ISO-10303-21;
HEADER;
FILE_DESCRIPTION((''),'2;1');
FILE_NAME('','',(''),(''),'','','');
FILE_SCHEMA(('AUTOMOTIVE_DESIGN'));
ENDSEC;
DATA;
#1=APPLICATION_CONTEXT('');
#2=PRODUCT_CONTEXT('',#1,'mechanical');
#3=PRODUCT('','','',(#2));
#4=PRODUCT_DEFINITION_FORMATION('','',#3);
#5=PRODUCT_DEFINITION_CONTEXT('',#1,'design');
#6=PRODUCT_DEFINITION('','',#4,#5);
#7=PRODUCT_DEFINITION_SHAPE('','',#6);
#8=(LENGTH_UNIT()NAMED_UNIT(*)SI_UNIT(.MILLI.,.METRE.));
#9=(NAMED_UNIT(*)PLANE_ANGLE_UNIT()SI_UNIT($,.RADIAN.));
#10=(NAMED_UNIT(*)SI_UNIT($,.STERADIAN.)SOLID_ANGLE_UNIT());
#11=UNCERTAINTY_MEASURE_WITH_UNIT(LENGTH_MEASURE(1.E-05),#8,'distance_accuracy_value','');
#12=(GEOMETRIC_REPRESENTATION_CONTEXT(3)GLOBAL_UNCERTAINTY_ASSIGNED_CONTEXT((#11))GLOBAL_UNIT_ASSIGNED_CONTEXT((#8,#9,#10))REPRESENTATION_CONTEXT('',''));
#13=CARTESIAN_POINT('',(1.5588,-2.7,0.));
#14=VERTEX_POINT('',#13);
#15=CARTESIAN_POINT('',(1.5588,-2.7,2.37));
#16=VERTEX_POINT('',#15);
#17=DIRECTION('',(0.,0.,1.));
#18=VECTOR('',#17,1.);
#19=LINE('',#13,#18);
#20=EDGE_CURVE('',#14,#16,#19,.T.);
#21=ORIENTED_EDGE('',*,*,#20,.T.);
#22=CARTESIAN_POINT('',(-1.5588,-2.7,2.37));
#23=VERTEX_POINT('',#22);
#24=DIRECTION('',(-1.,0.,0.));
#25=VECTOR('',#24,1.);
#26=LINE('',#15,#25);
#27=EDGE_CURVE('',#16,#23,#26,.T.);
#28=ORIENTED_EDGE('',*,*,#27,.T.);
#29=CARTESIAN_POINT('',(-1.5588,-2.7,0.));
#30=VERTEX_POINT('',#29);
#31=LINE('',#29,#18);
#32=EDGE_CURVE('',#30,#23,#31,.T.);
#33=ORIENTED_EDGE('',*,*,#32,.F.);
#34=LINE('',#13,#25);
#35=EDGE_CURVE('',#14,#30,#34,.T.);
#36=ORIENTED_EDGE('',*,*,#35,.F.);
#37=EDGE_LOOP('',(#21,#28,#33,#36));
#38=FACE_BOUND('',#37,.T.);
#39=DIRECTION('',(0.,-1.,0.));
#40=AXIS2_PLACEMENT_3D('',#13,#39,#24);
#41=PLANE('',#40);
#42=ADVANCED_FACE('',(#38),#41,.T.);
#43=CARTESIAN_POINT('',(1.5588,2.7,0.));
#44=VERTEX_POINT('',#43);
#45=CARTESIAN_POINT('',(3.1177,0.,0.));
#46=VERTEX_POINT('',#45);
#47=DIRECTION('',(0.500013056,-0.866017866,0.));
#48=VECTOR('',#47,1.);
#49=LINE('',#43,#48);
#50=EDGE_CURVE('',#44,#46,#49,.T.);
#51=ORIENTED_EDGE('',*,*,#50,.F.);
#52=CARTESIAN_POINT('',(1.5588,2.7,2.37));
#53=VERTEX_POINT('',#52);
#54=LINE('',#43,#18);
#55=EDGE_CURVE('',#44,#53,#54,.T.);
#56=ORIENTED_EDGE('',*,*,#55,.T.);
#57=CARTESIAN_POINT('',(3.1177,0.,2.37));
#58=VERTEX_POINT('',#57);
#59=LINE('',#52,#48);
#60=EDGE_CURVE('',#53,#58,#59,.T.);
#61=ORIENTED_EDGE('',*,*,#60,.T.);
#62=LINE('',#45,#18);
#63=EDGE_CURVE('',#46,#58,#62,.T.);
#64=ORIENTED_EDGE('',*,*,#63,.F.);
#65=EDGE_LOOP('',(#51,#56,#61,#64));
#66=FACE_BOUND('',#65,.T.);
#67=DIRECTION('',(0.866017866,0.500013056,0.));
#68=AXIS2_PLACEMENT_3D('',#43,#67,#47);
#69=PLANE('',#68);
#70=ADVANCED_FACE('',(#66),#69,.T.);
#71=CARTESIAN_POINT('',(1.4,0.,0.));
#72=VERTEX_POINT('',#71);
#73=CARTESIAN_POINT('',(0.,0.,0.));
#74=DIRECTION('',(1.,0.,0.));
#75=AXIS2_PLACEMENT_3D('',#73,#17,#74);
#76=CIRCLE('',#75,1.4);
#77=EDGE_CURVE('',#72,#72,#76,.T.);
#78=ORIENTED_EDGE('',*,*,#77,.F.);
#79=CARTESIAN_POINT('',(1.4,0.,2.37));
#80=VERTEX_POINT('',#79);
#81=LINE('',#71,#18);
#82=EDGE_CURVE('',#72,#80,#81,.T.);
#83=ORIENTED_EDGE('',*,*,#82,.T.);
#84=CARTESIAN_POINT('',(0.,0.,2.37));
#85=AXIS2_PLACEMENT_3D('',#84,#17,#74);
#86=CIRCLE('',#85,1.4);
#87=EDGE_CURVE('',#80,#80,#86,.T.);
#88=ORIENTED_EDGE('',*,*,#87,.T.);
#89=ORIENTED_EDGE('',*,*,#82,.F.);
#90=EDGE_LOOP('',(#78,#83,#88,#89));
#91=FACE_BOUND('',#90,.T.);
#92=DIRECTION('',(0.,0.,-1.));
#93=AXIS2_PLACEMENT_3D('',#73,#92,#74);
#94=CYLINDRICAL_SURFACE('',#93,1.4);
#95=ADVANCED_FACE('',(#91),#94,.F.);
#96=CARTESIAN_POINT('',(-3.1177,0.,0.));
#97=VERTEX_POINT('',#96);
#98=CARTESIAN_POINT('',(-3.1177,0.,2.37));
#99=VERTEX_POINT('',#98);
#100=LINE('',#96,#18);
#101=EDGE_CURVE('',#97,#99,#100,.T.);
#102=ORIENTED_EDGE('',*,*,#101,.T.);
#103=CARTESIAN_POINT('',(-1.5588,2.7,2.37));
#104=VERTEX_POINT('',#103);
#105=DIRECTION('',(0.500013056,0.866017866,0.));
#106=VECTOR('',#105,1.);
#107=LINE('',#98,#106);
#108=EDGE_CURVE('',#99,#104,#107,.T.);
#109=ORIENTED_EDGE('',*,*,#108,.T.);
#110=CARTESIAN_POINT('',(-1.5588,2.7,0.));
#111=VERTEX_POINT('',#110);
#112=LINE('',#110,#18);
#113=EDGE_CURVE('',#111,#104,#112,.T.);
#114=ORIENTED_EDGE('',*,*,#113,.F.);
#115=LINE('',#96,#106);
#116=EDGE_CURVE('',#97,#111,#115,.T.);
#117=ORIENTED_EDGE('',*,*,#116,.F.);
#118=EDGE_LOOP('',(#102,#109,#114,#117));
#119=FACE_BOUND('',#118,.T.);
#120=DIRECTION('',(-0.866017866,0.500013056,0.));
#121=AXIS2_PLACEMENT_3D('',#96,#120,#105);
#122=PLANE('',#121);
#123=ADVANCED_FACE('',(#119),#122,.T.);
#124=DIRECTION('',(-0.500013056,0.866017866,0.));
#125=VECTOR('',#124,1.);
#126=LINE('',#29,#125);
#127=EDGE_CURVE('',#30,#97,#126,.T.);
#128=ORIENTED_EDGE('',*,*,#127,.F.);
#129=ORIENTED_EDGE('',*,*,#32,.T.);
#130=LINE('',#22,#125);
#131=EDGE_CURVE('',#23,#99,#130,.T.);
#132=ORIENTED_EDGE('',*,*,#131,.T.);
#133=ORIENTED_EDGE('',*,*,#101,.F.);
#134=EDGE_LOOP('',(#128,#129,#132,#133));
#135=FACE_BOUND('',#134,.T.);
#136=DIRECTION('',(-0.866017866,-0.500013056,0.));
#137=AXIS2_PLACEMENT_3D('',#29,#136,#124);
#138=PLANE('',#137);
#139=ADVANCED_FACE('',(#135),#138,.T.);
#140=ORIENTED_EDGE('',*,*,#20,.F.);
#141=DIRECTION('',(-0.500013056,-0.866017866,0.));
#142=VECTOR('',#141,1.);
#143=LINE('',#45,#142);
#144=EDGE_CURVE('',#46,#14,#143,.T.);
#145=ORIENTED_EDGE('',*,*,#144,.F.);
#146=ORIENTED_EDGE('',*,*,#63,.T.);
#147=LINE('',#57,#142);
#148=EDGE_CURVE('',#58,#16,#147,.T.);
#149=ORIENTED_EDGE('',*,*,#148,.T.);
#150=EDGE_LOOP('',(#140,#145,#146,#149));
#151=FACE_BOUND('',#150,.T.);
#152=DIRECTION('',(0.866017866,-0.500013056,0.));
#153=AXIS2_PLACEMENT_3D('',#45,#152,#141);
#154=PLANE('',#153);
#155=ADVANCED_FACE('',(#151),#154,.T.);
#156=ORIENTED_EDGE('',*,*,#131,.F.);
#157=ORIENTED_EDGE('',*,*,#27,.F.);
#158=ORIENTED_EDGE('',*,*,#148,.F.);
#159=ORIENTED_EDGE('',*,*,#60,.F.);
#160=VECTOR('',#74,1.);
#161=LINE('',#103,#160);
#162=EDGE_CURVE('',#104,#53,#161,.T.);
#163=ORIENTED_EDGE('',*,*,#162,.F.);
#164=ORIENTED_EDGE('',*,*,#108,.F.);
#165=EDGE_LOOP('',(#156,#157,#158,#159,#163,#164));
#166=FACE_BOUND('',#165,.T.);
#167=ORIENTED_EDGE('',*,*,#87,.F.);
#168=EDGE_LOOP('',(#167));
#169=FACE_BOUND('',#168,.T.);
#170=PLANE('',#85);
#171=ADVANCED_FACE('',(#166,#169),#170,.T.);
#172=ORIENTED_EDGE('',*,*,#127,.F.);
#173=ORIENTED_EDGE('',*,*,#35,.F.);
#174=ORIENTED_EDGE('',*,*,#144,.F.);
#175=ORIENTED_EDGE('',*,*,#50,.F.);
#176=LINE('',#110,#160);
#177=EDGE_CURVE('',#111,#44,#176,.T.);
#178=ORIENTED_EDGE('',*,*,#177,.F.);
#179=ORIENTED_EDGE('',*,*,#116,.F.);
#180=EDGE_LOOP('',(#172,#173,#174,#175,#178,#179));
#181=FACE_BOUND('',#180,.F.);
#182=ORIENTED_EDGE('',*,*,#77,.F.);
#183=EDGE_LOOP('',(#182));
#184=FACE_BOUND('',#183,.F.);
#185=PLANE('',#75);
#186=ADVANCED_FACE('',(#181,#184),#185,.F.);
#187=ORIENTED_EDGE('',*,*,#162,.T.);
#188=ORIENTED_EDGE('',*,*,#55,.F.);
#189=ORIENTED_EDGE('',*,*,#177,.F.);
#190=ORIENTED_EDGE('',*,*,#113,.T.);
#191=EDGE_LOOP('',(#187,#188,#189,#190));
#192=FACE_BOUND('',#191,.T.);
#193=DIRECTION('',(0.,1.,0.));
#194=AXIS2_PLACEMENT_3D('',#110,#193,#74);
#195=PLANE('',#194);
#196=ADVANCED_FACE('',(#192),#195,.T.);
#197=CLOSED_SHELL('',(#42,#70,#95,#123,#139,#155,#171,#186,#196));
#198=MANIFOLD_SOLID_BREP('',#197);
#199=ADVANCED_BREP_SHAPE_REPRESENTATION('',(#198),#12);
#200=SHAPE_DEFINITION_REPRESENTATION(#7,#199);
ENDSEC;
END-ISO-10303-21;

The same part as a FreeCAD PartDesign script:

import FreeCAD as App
import Part
import Sketcher
from FreeCAD import Vector
Q = App.Units.Quantity


def add_polygon(sketch, points):
    """Adds a closed chain of lines whose ends are joined by coincident constraints."""
    first, n = sketch.GeometryCount, len(points)
    for a, b in zip(points, points[1:] + points[:1]):
        sketch.addGeometry(Part.LineSegment(App.Vector(*a, 0), App.Vector(*b, 0)), False)
    for i in range(n):
        sketch.addConstraint(Sketcher.Constraint("Coincident", first + i, 2, first + (i + 1) % n, 1))

doc = App.newDocument("Part")
body = doc.addObject("PartDesign::Body", "Body")

# Sketch on XY plane
sketch1 = doc.addObject("Sketcher::SketchObject", "Sketch")
body.addObject(sketch1)
sketch1.AttachmentSupport = (doc.XY_Plane, [""])
sketch1.MapMode = "FlatFace"
add_polygon(sketch1, [(3.1177, 0), (1.5588, 2.7), (-1.5588, 2.7), (-3.1177, 0), (-1.5588, -2.7), (1.5588, -2.7)])  # lines 0-5
sketch1.addGeometry(Part.Circle(Vector(0, 0, 0), Vector(0, 0, 1), 1.4), False)  # 6
sketch1.addConstraint(Sketcher.Constraint("Horizontal", 1))
sketch1.addConstraint(Sketcher.Constraint("Horizontal", 4))
sketch1.addConstraint(Sketcher.Constraint("Coincident", 6, 3, -1, 1))
sketch1.addConstraint(Sketcher.Constraint("Symmetric", 0, 2, 3, 2, -1, 1))
sketch1.addConstraint(Sketcher.Constraint("Symmetric", 2, 2, 5, 2, -1, 1))
sketch1.addConstraint(Sketcher.Constraint("PointOnObject", 2, 2, -1))
sketch1.addConstraint(Sketcher.Constraint("Parallel", 2, 5))
sketch1.addConstraint(Sketcher.Constraint("Vertical", 1, 2, 3, 2))
sketch1.addConstraint(Sketcher.Constraint("Diameter", 6, 2.8))
sketch1.addConstraint(Sketcher.Constraint("DistanceY", 3, 2, 1, 2, 5.4))
sketch1.addConstraint(Sketcher.Constraint("Angle", 0, Q("120.0009 deg")))
sketch1.addConstraint(Sketcher.Constraint("DistanceX", 1, 2, 1, 1, 3.1176))
pad1 = doc.addObject("PartDesign::Pad", "Pad")
body.addObject(pad1)
pad1.Profile = sketch1
pad1.Length = 2.37

doc.recompute()
